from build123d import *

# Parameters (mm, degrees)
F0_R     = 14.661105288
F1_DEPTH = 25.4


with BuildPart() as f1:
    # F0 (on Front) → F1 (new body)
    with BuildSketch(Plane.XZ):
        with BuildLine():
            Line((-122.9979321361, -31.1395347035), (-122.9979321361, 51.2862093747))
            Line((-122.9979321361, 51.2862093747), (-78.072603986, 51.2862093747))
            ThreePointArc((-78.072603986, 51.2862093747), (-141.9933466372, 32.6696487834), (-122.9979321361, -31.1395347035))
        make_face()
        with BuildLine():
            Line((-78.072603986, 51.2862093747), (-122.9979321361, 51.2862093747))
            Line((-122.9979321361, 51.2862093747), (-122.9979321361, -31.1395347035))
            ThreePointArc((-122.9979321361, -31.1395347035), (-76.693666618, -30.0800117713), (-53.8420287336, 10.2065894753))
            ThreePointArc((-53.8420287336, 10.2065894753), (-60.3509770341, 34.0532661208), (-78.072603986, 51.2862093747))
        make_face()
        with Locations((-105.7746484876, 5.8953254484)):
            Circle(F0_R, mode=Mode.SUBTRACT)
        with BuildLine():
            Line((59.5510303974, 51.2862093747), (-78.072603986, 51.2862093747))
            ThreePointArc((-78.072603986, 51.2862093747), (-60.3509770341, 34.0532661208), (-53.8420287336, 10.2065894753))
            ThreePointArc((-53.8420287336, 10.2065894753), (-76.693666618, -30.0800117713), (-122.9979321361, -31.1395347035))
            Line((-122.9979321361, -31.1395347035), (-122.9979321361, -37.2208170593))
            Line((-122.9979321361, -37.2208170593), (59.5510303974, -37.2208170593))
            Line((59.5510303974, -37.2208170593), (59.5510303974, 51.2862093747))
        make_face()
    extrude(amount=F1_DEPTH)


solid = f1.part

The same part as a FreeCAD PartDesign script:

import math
import FreeCAD as App
import Part
import Sketcher

V = App.Vector
Q = App.Units.Quantity

doc = App.newDocument("Part")
body = doc.addObject("PartDesign::Body", "Body")

sketch1 = body.newObject("Sketcher::SketchObject", "Sketch")
sketch1.AttachmentSupport = (doc.getObject("XZ_Plane"), [""])
sketch1.MapMode = "FlatFace"
sketch1.addGeometry([
    Part.ArcOfCircle(Part.Circle(V(-100.779749, 10.206589, 0), V(0, 0, 1), 46.937721), math.radians(61.067965), math.radians(241.747732)),
    Part.LineSegment(V(-122.997932, -31.139535, 0), V(-122.997932, -37.220817, 0)),
    Part.LineSegment(V(-122.997932, -37.220817, 0), V(59.55103, -37.220817, 0)),
    Part.LineSegment(V(59.55103, -37.220817, 0), V(59.55103, 51.286209, 0)),
    Part.LineSegment(V(59.55103, 51.286209, 0), V(-78.072604, 51.286209, 0)),
    Part.Circle(V(-105.774648, 5.895325, 0), V(0, 0, 1), 14.661105),
], False)
sketch1.addConstraint([
    Sketcher.Constraint("Coincident", 0, 2, 1, 1),
    Sketcher.Constraint("Coincident", 1, 2, 2, 1),
    Sketcher.Constraint("Coincident", 2, 2, 3, 1),
    Sketcher.Constraint("Coincident", 3, 2, 4, 1),
    Sketcher.Constraint("Coincident", 4, 2, 0, 1),
    Sketcher.Constraint("Vertical", 1),
    Sketcher.Constraint("Horizontal", 2),
    Sketcher.Constraint("Vertical", 3),
    Sketcher.Constraint("Horizontal", 4),
    Sketcher.Constraint("Diameter", 5, Q("29.322211 mm")),
    Sketcher.Constraint("Radius", 0, Q("46.937721 mm")),
    Sketcher.Constraint("DistanceY", 0, 2, 0, 3, Q("1.6278002 in")),
    Sketcher.Constraint("DistanceX", 5, 3, 0, 3, Q("4.994899 mm")),
    Sketcher.Constraint("DistanceX", 2, 1, 2, 2, Q("182.548963 mm")),
    Sketcher.Constraint("DistanceX", 4, 2, 4, 1, Q("137.623634 mm")),
    Sketcher.Constraint("DistanceY", 1, 2, 1, 1, Q("6.081282 mm")),
    Sketcher.Constraint("DistanceX", 0, 3, -1, 1, Q("100.779749 mm")),
    Sketcher.Constraint("DistanceY", -1, 1, 0, 3, Q("10.206589 mm")),
    Sketcher.Constraint("DistanceY", 0, 2, 5, 3, Q("37.03486 mm")),
])
pad1 = body.newObject("PartDesign::Pad", "Pad")
pad1.Profile = sketch1
pad1.Length = Q("1 in")

doc.recompute()
